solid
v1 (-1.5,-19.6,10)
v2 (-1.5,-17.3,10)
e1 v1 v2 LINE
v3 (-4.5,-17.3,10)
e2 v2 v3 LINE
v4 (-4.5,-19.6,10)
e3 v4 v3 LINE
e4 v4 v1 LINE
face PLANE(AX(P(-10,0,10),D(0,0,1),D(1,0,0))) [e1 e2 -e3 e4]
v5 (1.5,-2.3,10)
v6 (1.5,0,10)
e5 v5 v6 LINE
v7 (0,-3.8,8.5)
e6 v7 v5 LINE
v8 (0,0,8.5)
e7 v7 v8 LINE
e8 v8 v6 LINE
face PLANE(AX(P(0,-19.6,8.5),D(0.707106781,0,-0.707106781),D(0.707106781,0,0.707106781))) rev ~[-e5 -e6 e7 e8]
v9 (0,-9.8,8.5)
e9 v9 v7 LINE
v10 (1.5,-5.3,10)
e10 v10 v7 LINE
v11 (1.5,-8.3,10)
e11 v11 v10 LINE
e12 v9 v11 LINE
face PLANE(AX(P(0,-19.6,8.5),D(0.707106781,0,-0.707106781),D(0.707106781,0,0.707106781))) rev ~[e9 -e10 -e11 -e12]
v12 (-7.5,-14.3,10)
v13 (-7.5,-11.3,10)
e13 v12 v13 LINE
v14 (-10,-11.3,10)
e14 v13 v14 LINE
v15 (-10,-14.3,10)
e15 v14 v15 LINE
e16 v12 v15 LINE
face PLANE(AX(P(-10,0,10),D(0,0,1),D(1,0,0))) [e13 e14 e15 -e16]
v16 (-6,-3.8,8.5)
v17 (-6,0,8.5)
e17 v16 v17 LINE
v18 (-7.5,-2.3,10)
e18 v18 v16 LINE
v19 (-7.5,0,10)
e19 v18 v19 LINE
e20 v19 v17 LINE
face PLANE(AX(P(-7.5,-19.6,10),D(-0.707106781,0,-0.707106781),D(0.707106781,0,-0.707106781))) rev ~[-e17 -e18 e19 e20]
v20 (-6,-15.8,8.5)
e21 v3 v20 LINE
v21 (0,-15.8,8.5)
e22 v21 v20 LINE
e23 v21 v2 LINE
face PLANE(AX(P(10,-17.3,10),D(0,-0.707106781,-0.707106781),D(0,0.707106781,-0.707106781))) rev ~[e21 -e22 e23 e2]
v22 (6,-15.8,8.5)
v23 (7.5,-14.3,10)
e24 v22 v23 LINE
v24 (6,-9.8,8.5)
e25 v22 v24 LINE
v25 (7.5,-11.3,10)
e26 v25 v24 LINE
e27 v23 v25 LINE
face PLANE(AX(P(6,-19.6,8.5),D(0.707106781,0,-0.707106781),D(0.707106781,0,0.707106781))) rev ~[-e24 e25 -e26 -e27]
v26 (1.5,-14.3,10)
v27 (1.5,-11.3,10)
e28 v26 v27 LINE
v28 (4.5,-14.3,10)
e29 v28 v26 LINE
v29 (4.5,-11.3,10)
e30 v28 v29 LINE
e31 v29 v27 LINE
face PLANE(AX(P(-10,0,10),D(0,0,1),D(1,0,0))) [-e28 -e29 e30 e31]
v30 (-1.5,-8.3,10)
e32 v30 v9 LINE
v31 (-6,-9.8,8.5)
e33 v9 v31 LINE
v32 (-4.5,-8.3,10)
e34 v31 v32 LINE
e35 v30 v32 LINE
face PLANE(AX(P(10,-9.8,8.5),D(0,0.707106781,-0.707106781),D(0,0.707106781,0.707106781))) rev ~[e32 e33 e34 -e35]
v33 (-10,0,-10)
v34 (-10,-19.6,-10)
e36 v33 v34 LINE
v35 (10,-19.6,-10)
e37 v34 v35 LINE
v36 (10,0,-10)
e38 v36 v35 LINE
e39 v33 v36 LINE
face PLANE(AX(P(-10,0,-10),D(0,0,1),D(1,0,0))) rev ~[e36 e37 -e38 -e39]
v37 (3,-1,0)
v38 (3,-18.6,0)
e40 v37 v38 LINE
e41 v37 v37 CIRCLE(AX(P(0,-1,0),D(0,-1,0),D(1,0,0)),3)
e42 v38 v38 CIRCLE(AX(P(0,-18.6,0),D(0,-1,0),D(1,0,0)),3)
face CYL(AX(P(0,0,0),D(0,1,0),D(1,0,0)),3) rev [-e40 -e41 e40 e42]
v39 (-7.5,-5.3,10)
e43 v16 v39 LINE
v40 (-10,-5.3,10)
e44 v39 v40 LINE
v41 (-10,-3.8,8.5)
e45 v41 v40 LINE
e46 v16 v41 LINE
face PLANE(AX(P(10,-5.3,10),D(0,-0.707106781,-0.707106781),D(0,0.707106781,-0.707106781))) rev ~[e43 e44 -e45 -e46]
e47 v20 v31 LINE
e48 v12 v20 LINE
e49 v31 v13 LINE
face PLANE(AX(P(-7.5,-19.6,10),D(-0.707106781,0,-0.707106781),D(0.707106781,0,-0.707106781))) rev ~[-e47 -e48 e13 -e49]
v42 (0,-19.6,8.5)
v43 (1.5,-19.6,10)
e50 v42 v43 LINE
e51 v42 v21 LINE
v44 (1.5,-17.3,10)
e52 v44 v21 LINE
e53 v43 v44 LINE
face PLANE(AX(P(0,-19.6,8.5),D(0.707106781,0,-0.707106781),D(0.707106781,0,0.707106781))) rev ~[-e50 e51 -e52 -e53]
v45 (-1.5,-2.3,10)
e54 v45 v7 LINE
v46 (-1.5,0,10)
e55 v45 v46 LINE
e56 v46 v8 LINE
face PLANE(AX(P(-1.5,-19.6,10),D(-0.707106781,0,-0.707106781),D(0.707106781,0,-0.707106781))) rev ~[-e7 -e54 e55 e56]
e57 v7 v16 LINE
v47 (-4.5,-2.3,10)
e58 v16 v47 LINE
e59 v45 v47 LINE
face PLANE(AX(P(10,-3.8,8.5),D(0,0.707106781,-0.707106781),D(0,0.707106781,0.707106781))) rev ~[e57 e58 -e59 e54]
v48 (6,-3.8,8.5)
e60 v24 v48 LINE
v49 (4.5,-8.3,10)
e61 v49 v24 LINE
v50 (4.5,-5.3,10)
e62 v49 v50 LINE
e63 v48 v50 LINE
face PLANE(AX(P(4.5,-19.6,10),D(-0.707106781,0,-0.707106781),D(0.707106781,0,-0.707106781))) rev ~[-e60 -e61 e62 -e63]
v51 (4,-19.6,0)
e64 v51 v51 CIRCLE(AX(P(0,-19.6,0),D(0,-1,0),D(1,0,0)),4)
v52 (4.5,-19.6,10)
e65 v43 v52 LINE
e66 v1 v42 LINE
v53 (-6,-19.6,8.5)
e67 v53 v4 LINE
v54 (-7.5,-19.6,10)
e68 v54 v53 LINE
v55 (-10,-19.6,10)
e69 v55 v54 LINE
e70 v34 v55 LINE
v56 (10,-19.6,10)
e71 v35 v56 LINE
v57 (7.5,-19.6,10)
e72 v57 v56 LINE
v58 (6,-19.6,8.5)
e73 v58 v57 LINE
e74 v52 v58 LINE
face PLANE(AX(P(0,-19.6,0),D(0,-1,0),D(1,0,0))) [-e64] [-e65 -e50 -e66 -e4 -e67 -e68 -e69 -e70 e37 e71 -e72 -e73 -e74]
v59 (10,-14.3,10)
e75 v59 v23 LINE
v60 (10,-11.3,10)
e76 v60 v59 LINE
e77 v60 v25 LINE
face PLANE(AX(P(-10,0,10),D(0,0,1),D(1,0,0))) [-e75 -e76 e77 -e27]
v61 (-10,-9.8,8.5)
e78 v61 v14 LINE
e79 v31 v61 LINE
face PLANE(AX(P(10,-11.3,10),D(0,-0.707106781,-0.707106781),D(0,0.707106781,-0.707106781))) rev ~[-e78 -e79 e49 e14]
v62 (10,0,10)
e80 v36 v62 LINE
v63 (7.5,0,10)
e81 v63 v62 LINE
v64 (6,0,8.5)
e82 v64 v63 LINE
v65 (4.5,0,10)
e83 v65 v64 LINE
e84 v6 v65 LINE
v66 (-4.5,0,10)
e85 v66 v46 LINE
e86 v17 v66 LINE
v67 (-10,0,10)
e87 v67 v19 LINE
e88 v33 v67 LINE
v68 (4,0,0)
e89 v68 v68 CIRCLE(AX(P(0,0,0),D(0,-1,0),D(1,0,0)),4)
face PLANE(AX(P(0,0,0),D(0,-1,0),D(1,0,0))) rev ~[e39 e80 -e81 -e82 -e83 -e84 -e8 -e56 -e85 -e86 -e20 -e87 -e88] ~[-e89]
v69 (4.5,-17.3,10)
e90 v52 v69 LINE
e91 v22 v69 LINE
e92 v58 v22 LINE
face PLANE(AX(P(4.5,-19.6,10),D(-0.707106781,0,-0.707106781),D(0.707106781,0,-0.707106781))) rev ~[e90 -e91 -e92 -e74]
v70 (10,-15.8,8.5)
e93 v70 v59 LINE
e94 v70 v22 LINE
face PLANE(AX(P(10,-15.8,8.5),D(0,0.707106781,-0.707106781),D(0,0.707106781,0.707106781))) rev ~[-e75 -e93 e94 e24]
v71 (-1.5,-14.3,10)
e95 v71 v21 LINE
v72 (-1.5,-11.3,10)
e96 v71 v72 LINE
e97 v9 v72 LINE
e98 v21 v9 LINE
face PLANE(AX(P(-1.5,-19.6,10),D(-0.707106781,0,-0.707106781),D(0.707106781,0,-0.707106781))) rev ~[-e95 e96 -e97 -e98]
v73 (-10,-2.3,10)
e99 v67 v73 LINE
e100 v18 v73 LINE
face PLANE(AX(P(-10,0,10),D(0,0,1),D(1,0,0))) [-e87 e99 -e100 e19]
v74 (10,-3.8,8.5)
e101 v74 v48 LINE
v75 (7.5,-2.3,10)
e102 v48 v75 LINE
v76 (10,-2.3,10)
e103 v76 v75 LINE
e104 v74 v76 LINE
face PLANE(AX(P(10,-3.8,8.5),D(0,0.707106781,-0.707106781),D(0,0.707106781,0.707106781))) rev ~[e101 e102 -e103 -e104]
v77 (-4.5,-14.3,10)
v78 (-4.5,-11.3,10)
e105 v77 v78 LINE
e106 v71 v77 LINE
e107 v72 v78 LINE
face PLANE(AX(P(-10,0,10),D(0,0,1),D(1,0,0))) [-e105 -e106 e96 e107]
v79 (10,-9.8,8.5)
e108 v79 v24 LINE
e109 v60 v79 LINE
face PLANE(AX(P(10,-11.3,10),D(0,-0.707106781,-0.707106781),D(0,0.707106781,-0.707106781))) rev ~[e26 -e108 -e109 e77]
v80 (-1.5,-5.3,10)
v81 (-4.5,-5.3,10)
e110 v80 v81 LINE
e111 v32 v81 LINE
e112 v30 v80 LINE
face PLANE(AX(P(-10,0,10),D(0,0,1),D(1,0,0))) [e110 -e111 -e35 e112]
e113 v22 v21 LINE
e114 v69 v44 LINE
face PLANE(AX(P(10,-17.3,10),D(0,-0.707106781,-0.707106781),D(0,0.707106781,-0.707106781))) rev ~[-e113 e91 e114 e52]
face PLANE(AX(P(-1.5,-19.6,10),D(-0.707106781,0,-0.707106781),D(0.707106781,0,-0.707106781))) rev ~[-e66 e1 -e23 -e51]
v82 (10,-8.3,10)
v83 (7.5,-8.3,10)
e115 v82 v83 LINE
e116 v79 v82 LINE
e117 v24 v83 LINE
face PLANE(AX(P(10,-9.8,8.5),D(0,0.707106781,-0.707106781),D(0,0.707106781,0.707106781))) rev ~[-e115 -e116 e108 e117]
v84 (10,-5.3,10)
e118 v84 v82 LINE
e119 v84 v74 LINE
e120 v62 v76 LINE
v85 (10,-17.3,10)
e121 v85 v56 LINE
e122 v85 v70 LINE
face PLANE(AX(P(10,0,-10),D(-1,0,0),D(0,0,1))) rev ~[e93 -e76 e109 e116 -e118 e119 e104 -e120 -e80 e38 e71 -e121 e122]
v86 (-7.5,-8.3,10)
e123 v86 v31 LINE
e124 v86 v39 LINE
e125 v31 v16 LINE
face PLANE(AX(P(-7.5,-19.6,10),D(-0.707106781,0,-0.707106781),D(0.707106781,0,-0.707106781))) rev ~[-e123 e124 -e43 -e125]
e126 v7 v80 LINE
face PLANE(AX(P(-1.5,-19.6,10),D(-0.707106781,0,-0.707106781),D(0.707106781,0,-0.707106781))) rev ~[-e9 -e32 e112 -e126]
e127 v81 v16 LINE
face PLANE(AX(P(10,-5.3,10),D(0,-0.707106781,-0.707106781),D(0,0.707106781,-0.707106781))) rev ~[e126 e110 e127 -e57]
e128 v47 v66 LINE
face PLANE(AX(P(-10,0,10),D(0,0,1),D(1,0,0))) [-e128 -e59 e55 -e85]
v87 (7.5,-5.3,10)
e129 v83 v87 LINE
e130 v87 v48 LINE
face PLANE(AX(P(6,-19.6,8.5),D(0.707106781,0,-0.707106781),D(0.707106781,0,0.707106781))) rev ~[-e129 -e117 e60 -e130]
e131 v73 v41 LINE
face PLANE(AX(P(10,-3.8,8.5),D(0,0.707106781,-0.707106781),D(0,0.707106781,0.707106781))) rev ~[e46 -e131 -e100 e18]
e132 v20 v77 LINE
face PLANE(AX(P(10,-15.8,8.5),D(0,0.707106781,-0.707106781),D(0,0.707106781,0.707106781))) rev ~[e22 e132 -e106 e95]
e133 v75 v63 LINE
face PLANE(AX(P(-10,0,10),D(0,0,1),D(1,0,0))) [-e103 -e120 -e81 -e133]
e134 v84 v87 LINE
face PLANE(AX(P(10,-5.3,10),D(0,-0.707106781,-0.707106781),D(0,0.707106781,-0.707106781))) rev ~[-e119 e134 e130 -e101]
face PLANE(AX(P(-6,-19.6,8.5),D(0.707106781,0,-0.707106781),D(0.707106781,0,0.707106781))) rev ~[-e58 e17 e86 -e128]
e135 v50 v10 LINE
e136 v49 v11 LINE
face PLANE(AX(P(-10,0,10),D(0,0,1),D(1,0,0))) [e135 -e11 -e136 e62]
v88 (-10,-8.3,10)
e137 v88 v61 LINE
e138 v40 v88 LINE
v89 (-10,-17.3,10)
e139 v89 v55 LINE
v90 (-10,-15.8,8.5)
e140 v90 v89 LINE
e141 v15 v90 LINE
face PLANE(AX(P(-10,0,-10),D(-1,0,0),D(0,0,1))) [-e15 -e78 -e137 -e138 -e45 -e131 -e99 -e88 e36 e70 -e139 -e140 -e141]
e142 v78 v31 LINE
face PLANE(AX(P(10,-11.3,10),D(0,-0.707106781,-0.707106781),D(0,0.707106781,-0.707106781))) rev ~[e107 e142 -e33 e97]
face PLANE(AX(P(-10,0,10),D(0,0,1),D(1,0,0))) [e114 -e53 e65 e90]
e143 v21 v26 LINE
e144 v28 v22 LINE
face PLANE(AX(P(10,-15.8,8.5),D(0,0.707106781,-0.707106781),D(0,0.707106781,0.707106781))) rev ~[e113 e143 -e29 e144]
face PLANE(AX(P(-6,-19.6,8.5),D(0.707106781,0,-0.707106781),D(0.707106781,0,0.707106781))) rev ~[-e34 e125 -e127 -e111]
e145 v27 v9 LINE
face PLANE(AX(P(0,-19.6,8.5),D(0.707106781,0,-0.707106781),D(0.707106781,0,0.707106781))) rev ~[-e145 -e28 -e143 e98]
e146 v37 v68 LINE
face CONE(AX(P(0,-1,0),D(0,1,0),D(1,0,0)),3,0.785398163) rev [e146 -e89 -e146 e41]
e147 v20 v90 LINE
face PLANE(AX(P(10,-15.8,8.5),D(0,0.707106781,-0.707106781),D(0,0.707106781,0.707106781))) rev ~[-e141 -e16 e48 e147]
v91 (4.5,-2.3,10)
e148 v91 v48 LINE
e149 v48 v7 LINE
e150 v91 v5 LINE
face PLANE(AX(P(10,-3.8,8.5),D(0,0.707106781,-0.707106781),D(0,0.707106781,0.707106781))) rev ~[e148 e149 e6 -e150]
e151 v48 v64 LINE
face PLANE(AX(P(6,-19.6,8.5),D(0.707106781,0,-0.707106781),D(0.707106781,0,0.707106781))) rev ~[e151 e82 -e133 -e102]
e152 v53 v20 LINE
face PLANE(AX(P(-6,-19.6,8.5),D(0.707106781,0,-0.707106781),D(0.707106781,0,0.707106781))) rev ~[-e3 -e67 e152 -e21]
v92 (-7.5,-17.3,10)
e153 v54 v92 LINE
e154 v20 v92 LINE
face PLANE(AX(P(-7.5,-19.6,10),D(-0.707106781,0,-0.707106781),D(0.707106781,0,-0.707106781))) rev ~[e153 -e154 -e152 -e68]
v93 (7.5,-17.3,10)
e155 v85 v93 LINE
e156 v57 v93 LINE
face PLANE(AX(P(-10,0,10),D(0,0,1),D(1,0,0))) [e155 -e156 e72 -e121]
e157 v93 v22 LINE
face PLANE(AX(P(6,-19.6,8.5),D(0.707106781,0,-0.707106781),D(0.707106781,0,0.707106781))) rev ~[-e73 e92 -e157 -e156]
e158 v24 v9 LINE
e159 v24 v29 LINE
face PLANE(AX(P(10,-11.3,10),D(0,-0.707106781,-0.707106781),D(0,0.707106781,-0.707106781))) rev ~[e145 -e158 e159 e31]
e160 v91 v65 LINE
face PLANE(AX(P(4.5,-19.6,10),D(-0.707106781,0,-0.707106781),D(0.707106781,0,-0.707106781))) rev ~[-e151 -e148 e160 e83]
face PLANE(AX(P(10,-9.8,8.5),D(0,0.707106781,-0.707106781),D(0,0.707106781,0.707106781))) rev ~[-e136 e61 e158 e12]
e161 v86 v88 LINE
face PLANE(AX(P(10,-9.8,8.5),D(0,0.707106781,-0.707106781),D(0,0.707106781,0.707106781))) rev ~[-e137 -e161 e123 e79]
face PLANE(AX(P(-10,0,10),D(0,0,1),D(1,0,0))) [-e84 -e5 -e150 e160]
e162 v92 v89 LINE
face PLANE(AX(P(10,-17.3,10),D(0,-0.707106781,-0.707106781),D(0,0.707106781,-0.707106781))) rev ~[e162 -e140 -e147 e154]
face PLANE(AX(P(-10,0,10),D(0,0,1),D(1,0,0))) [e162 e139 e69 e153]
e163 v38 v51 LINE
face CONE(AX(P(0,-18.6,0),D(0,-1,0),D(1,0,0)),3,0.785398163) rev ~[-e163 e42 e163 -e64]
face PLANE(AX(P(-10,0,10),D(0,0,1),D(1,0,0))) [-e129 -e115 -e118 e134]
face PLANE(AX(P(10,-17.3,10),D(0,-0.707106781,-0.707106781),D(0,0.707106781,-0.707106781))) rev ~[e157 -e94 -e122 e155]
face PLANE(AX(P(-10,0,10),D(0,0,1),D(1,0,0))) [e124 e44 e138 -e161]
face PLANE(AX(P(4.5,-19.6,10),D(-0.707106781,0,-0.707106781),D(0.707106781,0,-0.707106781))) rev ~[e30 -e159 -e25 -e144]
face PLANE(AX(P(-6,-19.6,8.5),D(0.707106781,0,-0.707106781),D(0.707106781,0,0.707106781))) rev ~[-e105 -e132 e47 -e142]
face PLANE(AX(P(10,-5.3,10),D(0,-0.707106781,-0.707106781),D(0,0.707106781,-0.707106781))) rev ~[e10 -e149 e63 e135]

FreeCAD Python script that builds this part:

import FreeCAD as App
import Part
import Sketcher


def edges_at(feature, points):
    """Names of the edges that pass closest to the given points."""
    edges = feature.Shape.Edges
    near = lambda p: min(range(len(edges)), key=lambda i: edges[i].distToShape(Part.Vertex(*p))[0])
    return sorted({f"Edge{near(p) + 1}" for p in points})

doc = App.newDocument("Part")
body = doc.addObject("PartDesign::Body", "Body")

# Sketch on XZ plane
sketch1 = body.newObject("Sketcher::SketchObject", "Sketch")
sketch1.AttachmentSupport = (doc.getObject("XZ_Plane"), [""])
sketch1.MapMode = "FlatFace"
sketch1.addGeometry([
    Part.LineSegment(App.Vector(-10, 10, 0), App.Vector(-10, -10, 0)),  # 0
    Part.LineSegment(App.Vector(-10, -10, 0), App.Vector(10, -10, 0)),  # 1
    Part.LineSegment(App.Vector(10, -10, 0), App.Vector(10, 10, 0)),  # 2
    Part.LineSegment(App.Vector(10, 10, 0), App.Vector(-10, 10, 0)),  # 3
    Part.Circle(App.Vector(0, 0, 0), App.Vector(0, 0, 1), 3),  # 4
], False)
sketch1.addConstraint([
    Sketcher.Constraint("Coincident", 0, 2, 1, 1),
    Sketcher.Constraint("Coincident", 1, 2, 2, 1),
    Sketcher.Constraint("Coincident", 2, 2, 3, 1),
    Sketcher.Constraint("Coincident", 3, 2, 0, 1),
    Sketcher.Constraint("Vertical", 0),
    Sketcher.Constraint("Horizontal", 1),
    Sketcher.Constraint("Vertical", 2),
    Sketcher.Constraint("Horizontal", 3),
    Sketcher.Constraint("Coincident", 4, 3, -1, 1),
    Sketcher.Constraint("Symmetric", 0, 2, 2, 2, -1, 1),
    Sketcher.Constraint("Equal", 3, 0),
    Sketcher.Constraint("Diameter", 4, 6.0),
    Sketcher.Constraint("DistanceX", 1, 1, 1, 2, 20.0),
])
pad1 = body.newObject("PartDesign::Pad", "Pad")
pad1.Profile = sketch1
pad1.Length = 19.6
doc.recompute()

chamfer = body.newObject("PartDesign::Chamfer", "Chamfer")
chamfer.Base = (pad1, edges_at(pad1, [(-3, -19.6, 0), (-3, 0, 0)]))
chamfer.Size = 1

# Sketch on XZ plane
sketch2 = body.newObject("Sketcher::SketchObject", "Sketch001")
sketch2.AttachmentSupport = (doc.getObject("XZ_Plane"), [""])
sketch2.MapMode = "FlatFace"
sketch2.AttachmentOffset = App.Placement(App.Vector(0, 0, 19.6), App.Rotation())
sketch2.addGeometry([
    Part.LineSegment(App.Vector(-4.5, 10, 0), App.Vector(-7.5, 10, 0)),  # 0
    Part.LineSegment(App.Vector(-7.5, 10, 0), App.Vector(-6, 8.5, 0)),  # 1
    Part.LineSegment(App.Vector(-6, 8.5, 0), App.Vector(-4.5, 10, 0)),  # 2
    Part.LineSegment(App.Vector(1.5, 10, 0), App.Vector(-1.5, 10, 0)),  # 3
    Part.LineSegment(App.Vector(-1.5, 10, 0), App.Vector(0, 8.5, 0)),  # 4
    Part.LineSegment(App.Vector(0, 8.5, 0), App.Vector(1.5, 10, 0)),  # 5
    Part.LineSegment(App.Vector(7.5, 10, 0), App.Vector(4.5, 10, 0)),  # 6
    Part.LineSegment(App.Vector(4.5, 10, 0), App.Vector(6, 8.5, 0)),  # 7
    Part.LineSegment(App.Vector(6, 8.5, 0), App.Vector(7.5, 10, 0)),  # 8
], False)
sketch2.addConstraint([
    Sketcher.Constraint("Coincident", 0, 2, 1, 1),
    Sketcher.Constraint("Coincident", 1, 2, 2, 1),
    Sketcher.Constraint("Coincident", 2, 2, 0, 1),
    Sketcher.Constraint("Coincident", 3, 2, 4, 1),
    Sketcher.Constraint("Coincident", 4, 2, 5, 1),
    Sketcher.Constraint("Coincident", 5, 2, 3, 1),
    Sketcher.Constraint("Coincident", 6, 2, 7, 1),
    Sketcher.Constraint("Coincident", 7, 2, 8, 1),
    Sketcher.Constraint("Coincident", 8, 2, 6, 1),
    Sketcher.Constraint("Horizontal", 0),
    Sketcher.Constraint("Horizontal", 3),
    Sketcher.Constraint("Horizontal", 6),
    Sketcher.Constraint("Symmetric", 2, 2, 6, 2, -2),
    Sketcher.Constraint("Symmetric", 1, 2, 7, 2, -2),
    Sketcher.Constraint("PointOnObject", 4, 2, -2),
    Sketcher.Constraint("Perpendicular", 1, 2),
    Sketcher.Constraint("Perpendicular", 2, 4),
    Sketcher.Constraint("Perpendicular", 4, 5),
    Sketcher.Constraint("Perpendicular", 5, 7),
    Sketcher.Constraint("Perpendicular", 7, 8),
    Sketcher.Constraint("Horizontal", 2, 2, 3, 2),
    Sketcher.Constraint("Horizontal", 1, 2, 4, 2),
    Sketcher.Constraint("DistanceX", 0, 2, 0, 1, 3.0),
    Sketcher.Constraint("DistanceY", -1, 1, 0, 2, 10.0),
    Sketcher.Constraint("DistanceX", 1, 2, -1, 1, 6.0),
])
pocket1 = body.newObject("PartDesign::Pocket", "Pocket")
pocket1.Profile = sketch2
pocket1.Type = "ThroughAll"

# Sketch on YZ plane
sketch3 = body.newObject("Sketcher::SketchObject", "Sketch002")
sketch3.AttachmentSupport = (doc.getObject("YZ_Plane"), [""])
sketch3.MapMode = "FlatFace"
sketch3.AttachmentOffset = App.Placement(App.Vector(0, 0, 10), App.Rotation())
sketch3.addGeometry([
    Part.LineSegment(App.Vector(-14.3, 10, 0), App.Vector(-17.3, 10, 0)),  # 0
    Part.LineSegment(App.Vector(-17.3, 10, 0), App.Vector(-15.8, 8.5, 0)),  # 1
    Part.LineSegment(App.Vector(-15.8, 8.5, 0), App.Vector(-14.3, 10, 0)),  # 2
    Part.LineSegment(App.Vector(-8.3, 10, 0), App.Vector(-11.3, 10, 0)),  # 3
    Part.LineSegment(App.Vector(-11.3, 10, 0), App.Vector(-9.8, 8.5, 0)),  # 4
    Part.LineSegment(App.Vector(-9.8, 8.5, 0), App.Vector(-8.3, 10, 0)),  # 5
    Part.LineSegment(App.Vector(-2.3, 10, 0), App.Vector(-5.3, 10, 0)),  # 6
    Part.LineSegment(App.Vector(-5.3, 10, 0), App.Vector(-3.8, 8.5, 0)),  # 7
    Part.LineSegment(App.Vector(-3.8, 8.5, 0), App.Vector(-2.3, 10, 0)),  # 8
], False)
sketch3.addConstraint([
    Sketcher.Constraint("Coincident", 0, 2, 1, 1),
    Sketcher.Constraint("Coincident", 1, 2, 2, 1),
    Sketcher.Constraint("Coincident", 2, 2, 0, 1),
    Sketcher.Constraint("Coincident", 3, 2, 4, 1),
    Sketcher.Constraint("Coincident", 4, 2, 5, 1),
    Sketcher.Constraint("Coincident", 5, 2, 3, 1),
    Sketcher.Constraint("Coincident", 6, 2, 7, 1),
    Sketcher.Constraint("Coincident", 7, 2, 8, 1),
    Sketcher.Constraint("Coincident", 8, 2, 6, 1),
    Sketcher.Constraint("Horizontal", 0),
    Sketcher.Constraint("Horizontal", 3),
    Sketcher.Constraint("Horizontal", 6),
    Sketcher.Constraint("Perpendicular", 1, 2),
    Sketcher.Constraint("Perpendicular", 2, 4),
    Sketcher.Constraint("Perpendicular", 4, 5),
    Sketcher.Constraint("Perpendicular", 5, 7),
    Sketcher.Constraint("Perpendicular", 7, 8),
    Sketcher.Constraint("Horizontal", 2, 2, 3, 2),
    Sketcher.Constraint("Horizontal", 1, 2, 4, 2),
    Sketcher.Constraint("Horizontal", 5, 2, 6, 2),
    Sketcher.Constraint("Horizontal", 4, 2, 7, 2),
    Sketcher.Constraint("Equal", 1, 2),
    Sketcher.Constraint("DistanceX", 0, 2, 0, 1, 3.0),
    Sketcher.Constraint("DistanceY", -1, 1, 0, 2, 10.0),
    Sketcher.Constraint("DistanceX", 2, 2, 3, 2, 3.0),
    Sketcher.Constraint("DistanceX", 5, 2, 6, 2, 3.0),
    Sketcher.Constraint("DistanceX", 0, 2, -1, 1, 17.3),
])
pocket2 = body.newObject("PartDesign::Pocket", "Pocket001")
pocket2.Profile = sketch3
pocket2.Type = "ThroughAll"

doc.recompute()
